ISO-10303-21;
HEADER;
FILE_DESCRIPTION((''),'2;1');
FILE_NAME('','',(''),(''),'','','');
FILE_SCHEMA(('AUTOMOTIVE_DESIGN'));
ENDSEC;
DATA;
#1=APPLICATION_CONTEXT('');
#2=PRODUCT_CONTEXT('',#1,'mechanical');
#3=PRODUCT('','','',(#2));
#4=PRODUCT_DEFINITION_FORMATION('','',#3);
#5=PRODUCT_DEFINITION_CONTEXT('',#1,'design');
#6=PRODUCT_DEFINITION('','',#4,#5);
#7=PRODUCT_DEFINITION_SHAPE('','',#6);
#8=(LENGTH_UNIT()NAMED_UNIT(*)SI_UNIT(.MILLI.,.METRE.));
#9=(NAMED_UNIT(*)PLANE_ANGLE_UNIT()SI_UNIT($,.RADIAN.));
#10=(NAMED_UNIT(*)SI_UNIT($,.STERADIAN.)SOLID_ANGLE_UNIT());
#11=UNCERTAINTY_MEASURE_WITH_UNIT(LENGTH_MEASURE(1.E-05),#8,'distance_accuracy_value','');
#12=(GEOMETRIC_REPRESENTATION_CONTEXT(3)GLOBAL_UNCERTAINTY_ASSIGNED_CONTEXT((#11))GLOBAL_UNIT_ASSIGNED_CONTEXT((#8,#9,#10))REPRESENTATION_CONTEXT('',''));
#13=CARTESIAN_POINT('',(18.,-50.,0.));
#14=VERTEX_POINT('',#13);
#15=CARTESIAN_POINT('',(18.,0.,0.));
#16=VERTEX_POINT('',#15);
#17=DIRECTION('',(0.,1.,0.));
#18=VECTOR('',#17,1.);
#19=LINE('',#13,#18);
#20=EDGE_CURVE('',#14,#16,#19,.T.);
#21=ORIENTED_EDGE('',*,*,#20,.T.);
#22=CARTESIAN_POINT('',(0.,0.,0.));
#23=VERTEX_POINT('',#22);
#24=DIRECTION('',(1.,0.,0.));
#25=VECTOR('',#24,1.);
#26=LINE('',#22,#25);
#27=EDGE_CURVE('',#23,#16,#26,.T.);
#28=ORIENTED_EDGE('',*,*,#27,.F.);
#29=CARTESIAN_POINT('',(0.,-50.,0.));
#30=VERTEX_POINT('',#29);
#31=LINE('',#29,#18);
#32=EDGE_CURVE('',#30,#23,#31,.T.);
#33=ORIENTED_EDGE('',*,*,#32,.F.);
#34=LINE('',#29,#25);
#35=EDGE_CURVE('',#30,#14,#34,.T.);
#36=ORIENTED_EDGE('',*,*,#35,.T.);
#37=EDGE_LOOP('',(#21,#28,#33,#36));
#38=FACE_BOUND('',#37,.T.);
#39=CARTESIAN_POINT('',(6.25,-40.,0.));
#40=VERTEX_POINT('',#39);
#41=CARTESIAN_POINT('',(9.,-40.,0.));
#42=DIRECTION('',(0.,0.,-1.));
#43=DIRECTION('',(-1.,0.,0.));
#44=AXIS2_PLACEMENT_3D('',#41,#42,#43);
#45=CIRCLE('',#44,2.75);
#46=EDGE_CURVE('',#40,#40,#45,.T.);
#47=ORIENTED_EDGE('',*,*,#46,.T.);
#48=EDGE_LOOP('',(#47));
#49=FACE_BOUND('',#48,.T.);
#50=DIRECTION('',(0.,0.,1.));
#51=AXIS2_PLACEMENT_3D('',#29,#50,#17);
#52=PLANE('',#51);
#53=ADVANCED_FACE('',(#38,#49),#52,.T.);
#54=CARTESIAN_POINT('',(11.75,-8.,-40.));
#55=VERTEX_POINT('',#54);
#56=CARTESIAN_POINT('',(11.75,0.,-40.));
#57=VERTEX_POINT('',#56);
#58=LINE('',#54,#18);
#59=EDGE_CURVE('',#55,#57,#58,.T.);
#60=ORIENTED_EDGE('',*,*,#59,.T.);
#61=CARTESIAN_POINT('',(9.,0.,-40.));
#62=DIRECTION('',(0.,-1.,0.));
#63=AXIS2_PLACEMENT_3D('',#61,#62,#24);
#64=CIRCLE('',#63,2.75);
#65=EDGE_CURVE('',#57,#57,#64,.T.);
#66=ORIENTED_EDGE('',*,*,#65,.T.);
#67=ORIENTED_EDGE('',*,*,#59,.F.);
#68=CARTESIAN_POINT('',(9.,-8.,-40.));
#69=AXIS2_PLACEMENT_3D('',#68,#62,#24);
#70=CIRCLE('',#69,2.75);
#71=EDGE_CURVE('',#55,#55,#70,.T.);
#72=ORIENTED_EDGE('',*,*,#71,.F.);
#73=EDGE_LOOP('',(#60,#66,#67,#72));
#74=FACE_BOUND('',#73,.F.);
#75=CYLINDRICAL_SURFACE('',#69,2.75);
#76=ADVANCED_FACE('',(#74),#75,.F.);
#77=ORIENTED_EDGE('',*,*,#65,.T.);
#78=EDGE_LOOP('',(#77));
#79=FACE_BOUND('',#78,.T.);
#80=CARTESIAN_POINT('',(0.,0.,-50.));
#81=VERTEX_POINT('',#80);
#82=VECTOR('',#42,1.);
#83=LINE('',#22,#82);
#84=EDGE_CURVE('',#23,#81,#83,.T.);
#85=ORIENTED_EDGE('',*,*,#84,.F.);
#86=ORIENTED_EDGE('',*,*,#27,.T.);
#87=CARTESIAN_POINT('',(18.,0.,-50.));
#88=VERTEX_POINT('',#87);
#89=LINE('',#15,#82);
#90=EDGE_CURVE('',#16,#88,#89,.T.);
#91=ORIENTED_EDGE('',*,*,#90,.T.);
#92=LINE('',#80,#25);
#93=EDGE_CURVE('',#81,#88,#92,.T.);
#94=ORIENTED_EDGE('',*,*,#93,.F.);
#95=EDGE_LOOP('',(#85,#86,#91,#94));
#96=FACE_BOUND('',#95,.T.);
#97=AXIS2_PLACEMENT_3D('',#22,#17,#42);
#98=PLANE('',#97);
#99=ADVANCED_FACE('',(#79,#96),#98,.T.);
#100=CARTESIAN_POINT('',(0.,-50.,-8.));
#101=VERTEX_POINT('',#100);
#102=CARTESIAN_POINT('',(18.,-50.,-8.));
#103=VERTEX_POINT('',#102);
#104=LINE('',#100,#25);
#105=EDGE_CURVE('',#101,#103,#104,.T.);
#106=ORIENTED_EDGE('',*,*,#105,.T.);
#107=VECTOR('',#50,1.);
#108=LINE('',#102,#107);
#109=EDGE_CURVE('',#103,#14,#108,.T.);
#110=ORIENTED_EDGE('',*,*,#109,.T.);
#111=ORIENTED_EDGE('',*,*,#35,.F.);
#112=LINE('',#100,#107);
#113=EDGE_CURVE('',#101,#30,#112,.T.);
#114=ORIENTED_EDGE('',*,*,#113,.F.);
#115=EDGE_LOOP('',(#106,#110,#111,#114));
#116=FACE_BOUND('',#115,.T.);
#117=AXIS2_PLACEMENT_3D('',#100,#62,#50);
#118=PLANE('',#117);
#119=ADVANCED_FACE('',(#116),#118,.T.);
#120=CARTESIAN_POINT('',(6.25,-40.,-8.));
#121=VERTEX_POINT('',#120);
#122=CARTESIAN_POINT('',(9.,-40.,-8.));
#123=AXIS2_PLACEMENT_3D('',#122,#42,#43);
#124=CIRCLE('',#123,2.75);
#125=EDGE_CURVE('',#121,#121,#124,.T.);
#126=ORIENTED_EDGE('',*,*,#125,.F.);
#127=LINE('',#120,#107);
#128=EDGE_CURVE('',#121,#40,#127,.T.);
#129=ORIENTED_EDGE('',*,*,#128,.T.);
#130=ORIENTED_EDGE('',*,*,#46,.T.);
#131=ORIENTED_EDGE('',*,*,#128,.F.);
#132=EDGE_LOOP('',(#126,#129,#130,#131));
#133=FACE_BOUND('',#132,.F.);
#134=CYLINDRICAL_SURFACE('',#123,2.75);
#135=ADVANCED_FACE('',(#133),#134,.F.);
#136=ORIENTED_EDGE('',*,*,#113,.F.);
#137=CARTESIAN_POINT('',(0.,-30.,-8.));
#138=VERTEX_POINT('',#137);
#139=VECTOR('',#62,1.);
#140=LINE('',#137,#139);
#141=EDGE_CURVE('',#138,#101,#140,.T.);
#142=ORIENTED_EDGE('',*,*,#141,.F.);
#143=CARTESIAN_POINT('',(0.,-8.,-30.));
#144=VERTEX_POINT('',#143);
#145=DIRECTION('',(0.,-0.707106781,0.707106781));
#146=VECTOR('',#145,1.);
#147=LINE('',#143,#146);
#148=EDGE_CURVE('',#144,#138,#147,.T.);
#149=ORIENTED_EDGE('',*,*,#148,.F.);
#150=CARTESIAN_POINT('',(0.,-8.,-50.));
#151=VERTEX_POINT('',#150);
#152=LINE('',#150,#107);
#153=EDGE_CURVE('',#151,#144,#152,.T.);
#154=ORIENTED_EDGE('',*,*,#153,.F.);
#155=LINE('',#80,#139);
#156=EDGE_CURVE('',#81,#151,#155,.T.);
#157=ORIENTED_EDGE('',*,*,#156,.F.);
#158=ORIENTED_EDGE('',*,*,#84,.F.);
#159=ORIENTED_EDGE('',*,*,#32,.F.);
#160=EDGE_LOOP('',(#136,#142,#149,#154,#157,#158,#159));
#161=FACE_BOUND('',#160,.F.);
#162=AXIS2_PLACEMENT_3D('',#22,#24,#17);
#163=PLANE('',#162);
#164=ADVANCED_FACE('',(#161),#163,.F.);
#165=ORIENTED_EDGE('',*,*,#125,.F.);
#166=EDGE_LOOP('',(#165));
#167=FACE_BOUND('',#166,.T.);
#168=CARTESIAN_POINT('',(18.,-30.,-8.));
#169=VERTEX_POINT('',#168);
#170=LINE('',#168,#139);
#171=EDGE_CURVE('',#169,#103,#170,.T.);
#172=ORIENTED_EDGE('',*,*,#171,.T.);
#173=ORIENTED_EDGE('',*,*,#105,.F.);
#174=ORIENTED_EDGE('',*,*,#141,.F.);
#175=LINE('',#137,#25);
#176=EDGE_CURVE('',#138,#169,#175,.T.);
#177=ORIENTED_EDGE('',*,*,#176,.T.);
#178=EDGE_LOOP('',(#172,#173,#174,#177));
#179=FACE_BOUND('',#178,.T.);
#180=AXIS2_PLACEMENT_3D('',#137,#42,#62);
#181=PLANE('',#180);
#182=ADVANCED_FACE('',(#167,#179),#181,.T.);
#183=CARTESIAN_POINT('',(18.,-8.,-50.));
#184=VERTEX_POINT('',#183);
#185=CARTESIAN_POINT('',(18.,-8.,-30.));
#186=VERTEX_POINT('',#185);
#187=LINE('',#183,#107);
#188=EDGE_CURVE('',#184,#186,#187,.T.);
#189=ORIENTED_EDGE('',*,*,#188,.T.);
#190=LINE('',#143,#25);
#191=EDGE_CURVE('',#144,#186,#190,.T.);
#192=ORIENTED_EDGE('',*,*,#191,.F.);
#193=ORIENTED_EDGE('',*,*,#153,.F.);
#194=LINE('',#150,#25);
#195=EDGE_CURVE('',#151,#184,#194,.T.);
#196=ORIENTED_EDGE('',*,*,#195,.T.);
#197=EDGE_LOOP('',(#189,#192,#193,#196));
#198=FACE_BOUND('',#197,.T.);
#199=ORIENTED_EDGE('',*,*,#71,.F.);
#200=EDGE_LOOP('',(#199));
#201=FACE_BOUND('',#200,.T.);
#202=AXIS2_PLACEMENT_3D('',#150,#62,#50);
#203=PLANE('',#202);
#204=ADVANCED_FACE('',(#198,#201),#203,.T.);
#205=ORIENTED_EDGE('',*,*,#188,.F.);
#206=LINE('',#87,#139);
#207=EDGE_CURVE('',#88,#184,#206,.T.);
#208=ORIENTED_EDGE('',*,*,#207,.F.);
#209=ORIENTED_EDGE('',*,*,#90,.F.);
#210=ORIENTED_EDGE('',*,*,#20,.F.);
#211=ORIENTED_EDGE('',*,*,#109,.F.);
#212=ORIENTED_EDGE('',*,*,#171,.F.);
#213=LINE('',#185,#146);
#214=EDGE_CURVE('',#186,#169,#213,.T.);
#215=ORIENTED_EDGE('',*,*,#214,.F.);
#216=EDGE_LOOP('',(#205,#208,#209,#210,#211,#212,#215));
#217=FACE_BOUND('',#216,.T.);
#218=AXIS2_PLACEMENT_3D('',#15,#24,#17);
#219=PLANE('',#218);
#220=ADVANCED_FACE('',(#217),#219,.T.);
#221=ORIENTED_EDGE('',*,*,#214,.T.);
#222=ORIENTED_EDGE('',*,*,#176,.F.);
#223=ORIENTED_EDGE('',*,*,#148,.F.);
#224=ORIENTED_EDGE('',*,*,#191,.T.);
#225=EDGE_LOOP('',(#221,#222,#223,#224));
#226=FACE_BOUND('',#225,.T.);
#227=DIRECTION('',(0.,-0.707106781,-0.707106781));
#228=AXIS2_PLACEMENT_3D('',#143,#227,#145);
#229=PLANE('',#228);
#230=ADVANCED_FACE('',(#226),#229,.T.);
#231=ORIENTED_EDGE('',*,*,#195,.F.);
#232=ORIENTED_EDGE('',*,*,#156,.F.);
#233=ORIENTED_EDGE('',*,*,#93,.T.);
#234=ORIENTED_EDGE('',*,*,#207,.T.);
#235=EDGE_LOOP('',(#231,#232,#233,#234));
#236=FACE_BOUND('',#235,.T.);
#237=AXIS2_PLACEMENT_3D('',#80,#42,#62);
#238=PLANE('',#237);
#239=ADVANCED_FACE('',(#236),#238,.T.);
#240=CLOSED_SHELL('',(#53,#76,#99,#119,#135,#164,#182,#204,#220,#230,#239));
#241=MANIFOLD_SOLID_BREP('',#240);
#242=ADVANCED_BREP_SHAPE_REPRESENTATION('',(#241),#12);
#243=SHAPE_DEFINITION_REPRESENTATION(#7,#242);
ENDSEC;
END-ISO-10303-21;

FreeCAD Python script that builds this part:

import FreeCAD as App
import Part
import Sketcher
from FreeCAD import Vector

doc = App.newDocument("Part")
body = doc.addObject("PartDesign::Body", "Body")

# Sketch on YZ plane
sketch1 = body.newObject("Sketcher::SketchObject", "Sketch")
sketch1.AttachmentSupport = (doc.getObject("YZ_Plane"), [""])
sketch1.MapMode = "FlatFace"
sketch1.addGeometry([
    Part.LineSegment(Vector(0, 0, 0), Vector(-50, 0, 0)),  # 0
    Part.LineSegment(Vector(-50, 0, 0), Vector(-50, -8, 0)),  # 1
    Part.LineSegment(Vector(-50, -8, 0), Vector(-30, -8, 0)),  # 2
    Part.LineSegment(Vector(-30, -8, 0), Vector(-8, -30, 0)),  # 3
    Part.LineSegment(Vector(-8, -30, 0), Vector(-8, -50, 0)),  # 4
    Part.LineSegment(Vector(-8, -50, 0), Vector(0, -50, 0)),  # 5
    Part.LineSegment(Vector(0, -50, 0), Vector(0, 0, 0)),  # 6
], False)
sketch1.addConstraint([
    Sketcher.Constraint("Coincident", 0, 2, 1, 1),
    Sketcher.Constraint("Coincident", 1, 2, 2, 1),
    Sketcher.Constraint("Coincident", 2, 2, 3, 1),
    Sketcher.Constraint("Coincident", 3, 2, 4, 1),
    Sketcher.Constraint("Coincident", 4, 2, 5, 1),
    Sketcher.Constraint("Coincident", 5, 2, 6, 1),
    Sketcher.Constraint("Coincident", 6, 2, 0, 1),
    Sketcher.Constraint("Horizontal", 0),
    Sketcher.Constraint("Vertical", 1),
    Sketcher.Constraint("Horizontal", 2),
    Sketcher.Constraint("Vertical", 4),
    Sketcher.Constraint("Horizontal", 5),
    Sketcher.Constraint("Vertical", 6),
    Sketcher.Constraint("Coincident", 6, 2, -1, 1),
    Sketcher.Constraint("Equal", 5, 1),
    Sketcher.Constraint("Equal", 2, 4),
    Sketcher.Constraint("Equal", 0, 6),
    Sketcher.Constraint("DistanceX", 0, 2, 0, 1, 50.0),
    Sketcher.Constraint("DistanceX", 2, 1, 2, 2, 20.0),
    Sketcher.Constraint("DistanceX", 5, 1, 5, 2, 8.0),
])
pad1 = body.newObject("PartDesign::Pad", "Pad")
pad1.Profile = sketch1
pad1.Length = 18

# Sketch on XZ plane
sketch2 = body.newObject("Sketcher::SketchObject", "Sketch001")
sketch2.AttachmentSupport = (doc.getObject("XZ_Plane"), [""])
sketch2.MapMode = "FlatFace"
sketch2.AttachmentOffset = App.Placement(Vector(0, 0, 8), App.Rotation())
sketch2.addGeometry(Part.Circle(Vector(9, -40, 0), Vector(0, 0, 1), 2.75), False)
sketch2.addConstraint([
    Sketcher.Constraint("Diameter", 0, 5.5),
    Sketcher.Constraint("DistanceX", -1, 1, 0, 3, 9.0),
    Sketcher.Constraint("DistanceY", 0, 3, -1, 1, 40.0),
])
pocket1 = body.newObject("PartDesign::Pocket", "Pocket")
pocket1.Profile = sketch2
pocket1.Type = "ThroughAll"

# Sketch on XY plane
sketch3 = body.newObject("Sketcher::SketchObject", "Sketch002")
sketch3.AttachmentSupport = (doc.getObject("XY_Plane"), [""])
sketch3.MapMode = "FlatFace"
sketch3.AttachmentOffset = App.Placement(Vector(0, 0, -8), App.Rotation())
sketch3.addGeometry(Part.Circle(Vector(9, -40, 0), Vector(0, 0, 1), 2.75), False)
sketch3.addConstraint([
    Sketcher.Constraint("Diameter", 0, 5.5),
    Sketcher.Constraint("DistanceX", -1, 1, 0, 3, 9.0),
    Sketcher.Constraint("DistanceY", 0, 3, -1, 1, 40.0),
])
pocket2 = body.newObject("PartDesign::Pocket", "Pocket001")
pocket2.Profile = sketch3
pocket2.Type = "ThroughAll"
pocket2.Reversed = True

doc.recompute()
